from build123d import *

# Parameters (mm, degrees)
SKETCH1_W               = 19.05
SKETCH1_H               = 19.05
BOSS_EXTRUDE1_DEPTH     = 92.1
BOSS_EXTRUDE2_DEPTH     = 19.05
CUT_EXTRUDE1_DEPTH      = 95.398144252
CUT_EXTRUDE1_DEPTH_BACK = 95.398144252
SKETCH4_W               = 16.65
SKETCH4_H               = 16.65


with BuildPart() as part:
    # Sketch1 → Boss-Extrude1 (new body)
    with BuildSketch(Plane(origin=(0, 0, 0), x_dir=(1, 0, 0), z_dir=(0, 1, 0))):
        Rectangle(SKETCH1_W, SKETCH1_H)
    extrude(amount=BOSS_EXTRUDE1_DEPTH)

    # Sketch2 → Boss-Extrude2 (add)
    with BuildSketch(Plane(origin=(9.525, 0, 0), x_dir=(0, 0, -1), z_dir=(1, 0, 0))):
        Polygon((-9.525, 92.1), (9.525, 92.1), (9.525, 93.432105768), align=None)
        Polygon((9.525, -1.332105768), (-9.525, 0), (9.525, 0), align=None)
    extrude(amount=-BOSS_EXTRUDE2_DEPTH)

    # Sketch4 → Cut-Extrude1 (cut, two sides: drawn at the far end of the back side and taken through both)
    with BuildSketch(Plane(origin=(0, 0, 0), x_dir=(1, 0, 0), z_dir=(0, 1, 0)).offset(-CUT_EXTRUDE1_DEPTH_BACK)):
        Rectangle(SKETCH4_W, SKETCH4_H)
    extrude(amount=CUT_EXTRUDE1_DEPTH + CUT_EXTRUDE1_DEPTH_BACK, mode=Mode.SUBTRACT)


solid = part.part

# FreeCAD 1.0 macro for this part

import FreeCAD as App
import Part
import Sketcher
from FreeCAD import Vector
Q = App.Units.Quantity

doc = App.newDocument("Part")
body = doc.addObject("PartDesign::Body", "Body")

# Sketch on XZ plane
sketch1 = doc.addObject("Sketcher::SketchObject", "Sketch")
body.addObject(sketch1)
sketch1.AttachmentSupport = (doc.XZ_Plane, [""])
sketch1.MapMode = "FlatFace"
sketch1.addGeometry([
    Part.LineSegment(Vector(-10, -10, 0), Vector(-10, 10, 0)),
    Part.LineSegment(Vector(-10, 10, 0), Vector(10, 10, 0)),
    Part.LineSegment(Vector(10, 10, 0), Vector(10, -10, 0)),
    Part.LineSegment(Vector(10, -10, 0), Vector(-10, -10, 0)),
], False)
sketch1.addConstraint([
    Sketcher.Constraint("Coincident", 0, 2, 1, 1),
    Sketcher.Constraint("Coincident", 1, 2, 2, 1),
    Sketcher.Constraint("Coincident", 2, 2, 3, 1),
    Sketcher.Constraint("Coincident", 3, 2, 0, 1),
    Sketcher.Constraint("Vertical", 0),
    Sketcher.Constraint("Horizontal", 1),
    Sketcher.Constraint("Vertical", 2),
    Sketcher.Constraint("Horizontal", 3),
    Sketcher.Constraint("Symmetric", 0, 2, 2, 2, -1, 1),
    Sketcher.Constraint("Equal", 3, 0),
    Sketcher.Constraint("DistanceX", 1, 1, 1, 2, 19.05),
])
pad1 = doc.addObject("PartDesign::Pad", "Pad")
body.addObject(pad1)
pad1.Profile = sketch1
pad1.Length = 92.1
pad1.Reversed = True

# Sketch on YZ plane
sketch2 = doc.addObject("Sketcher::SketchObject", "Sketch001")
body.addObject(sketch2)
sketch2.AttachmentSupport = (doc.YZ_Plane, [""])
sketch2.MapMode = "FlatFace"
sketch2.AttachmentOffset = App.Placement(Vector(0, 0, 9.525), App.Rotation())
sketch2.addGeometry([
    Part.LineSegment(Vector(92.1, 9.5, 0), Vector(92.1, -9.5, 0)),  # 0
    Part.LineSegment(Vector(92.1, -9.5, 0), Vector(93.4, -9.5, 0)),  # 1
    Part.LineSegment(Vector(93.4, -9.5, 0), Vector(92.1, 9.5, 0)),  # 2
    Part.LineSegment(Vector(0, 9.5, 0), Vector(-1.3, -9.5, 0)),  # 3
    Part.LineSegment(Vector(-1.3, -9.5, 0), Vector(0, -9.5, 0)),  # 4
    Part.LineSegment(Vector(0, -9.5, 0), Vector(0, 9.5, 0)),  # 5
], False)
sketch2.addConstraint([
    Sketcher.Constraint("Coincident", 0, 2, 1, 1),
    Sketcher.Constraint("Coincident", 1, 2, 2, 1),
    Sketcher.Constraint("Coincident", 2, 2, 0, 1),
    Sketcher.Constraint("Coincident", 3, 2, 4, 1),
    Sketcher.Constraint("Coincident", 4, 2, 5, 1),
    Sketcher.Constraint("Coincident", 5, 2, 3, 1),
    Sketcher.Constraint("Vertical", 0),
    Sketcher.Constraint("Horizontal", 1),
    Sketcher.Constraint("Horizontal", 4),
    Sketcher.Constraint("Vertical", 5),
    Sketcher.Constraint("Symmetric", 4, 2, 5, 2, -1, 1),
    Sketcher.Constraint("Horizontal", 1, 2, 3, 2),
    Sketcher.Constraint("Horizontal", 2, 2, 5, 2),
    Sketcher.Constraint("Equal", 1, 4),
    Sketcher.Constraint("Angle", 2, Q("94 deg")),
    Sketcher.Constraint("DistanceY", 0, 2, 0, 1, 19.05),
    Sketcher.Constraint("DistanceX", -1, 1, 0, 2, 92.1),
])
pad2 = doc.addObject("PartDesign::Pad", "Pad001")
body.addObject(pad2)
pad2.Profile = sketch2
pad2.Length = 19.05
pad2.Reversed = True

# Sketch on XZ plane
sketch3 = doc.addObject("Sketcher::SketchObject", "Sketch002")
body.addObject(sketch3)
sketch3.AttachmentSupport = (doc.XZ_Plane, [""])
sketch3.MapMode = "FlatFace"
sketch3.addGeometry([
    Part.LineSegment(Vector(-8, -8, 0), Vector(-8, 8, 0)),
    Part.LineSegment(Vector(-8, 8, 0), Vector(8, 8, 0)),
    Part.LineSegment(Vector(8, 8, 0), Vector(8, -8, 0)),
    Part.LineSegment(Vector(8, -8, 0), Vector(-8, -8, 0)),
], False)
sketch3.addConstraint([
    Sketcher.Constraint("Coincident", 0, 2, 1, 1),
    Sketcher.Constraint("Coincident", 1, 2, 2, 1),
    Sketcher.Constraint("Coincident", 2, 2, 3, 1),
    Sketcher.Constraint("Coincident", 3, 2, 0, 1),
    Sketcher.Constraint("Vertical", 0),
    Sketcher.Constraint("Horizontal", 1),
    Sketcher.Constraint("Vertical", 2),
    Sketcher.Constraint("Horizontal", 3),
    Sketcher.Constraint("Symmetric", 0, 2, 2, 2, -1, 1),
    Sketcher.Constraint("Equal", 3, 0),
    Sketcher.Constraint("DistanceX", 1, 1, 1, 2, 16.65),
])
pocket1 = doc.addObject("PartDesign::Pocket", "Pocket")
body.addObject(pocket1)
pocket1.Profile = sketch3
pocket1.Type = "ThroughAll"
pocket1.Midplane = True

doc.recompute()
